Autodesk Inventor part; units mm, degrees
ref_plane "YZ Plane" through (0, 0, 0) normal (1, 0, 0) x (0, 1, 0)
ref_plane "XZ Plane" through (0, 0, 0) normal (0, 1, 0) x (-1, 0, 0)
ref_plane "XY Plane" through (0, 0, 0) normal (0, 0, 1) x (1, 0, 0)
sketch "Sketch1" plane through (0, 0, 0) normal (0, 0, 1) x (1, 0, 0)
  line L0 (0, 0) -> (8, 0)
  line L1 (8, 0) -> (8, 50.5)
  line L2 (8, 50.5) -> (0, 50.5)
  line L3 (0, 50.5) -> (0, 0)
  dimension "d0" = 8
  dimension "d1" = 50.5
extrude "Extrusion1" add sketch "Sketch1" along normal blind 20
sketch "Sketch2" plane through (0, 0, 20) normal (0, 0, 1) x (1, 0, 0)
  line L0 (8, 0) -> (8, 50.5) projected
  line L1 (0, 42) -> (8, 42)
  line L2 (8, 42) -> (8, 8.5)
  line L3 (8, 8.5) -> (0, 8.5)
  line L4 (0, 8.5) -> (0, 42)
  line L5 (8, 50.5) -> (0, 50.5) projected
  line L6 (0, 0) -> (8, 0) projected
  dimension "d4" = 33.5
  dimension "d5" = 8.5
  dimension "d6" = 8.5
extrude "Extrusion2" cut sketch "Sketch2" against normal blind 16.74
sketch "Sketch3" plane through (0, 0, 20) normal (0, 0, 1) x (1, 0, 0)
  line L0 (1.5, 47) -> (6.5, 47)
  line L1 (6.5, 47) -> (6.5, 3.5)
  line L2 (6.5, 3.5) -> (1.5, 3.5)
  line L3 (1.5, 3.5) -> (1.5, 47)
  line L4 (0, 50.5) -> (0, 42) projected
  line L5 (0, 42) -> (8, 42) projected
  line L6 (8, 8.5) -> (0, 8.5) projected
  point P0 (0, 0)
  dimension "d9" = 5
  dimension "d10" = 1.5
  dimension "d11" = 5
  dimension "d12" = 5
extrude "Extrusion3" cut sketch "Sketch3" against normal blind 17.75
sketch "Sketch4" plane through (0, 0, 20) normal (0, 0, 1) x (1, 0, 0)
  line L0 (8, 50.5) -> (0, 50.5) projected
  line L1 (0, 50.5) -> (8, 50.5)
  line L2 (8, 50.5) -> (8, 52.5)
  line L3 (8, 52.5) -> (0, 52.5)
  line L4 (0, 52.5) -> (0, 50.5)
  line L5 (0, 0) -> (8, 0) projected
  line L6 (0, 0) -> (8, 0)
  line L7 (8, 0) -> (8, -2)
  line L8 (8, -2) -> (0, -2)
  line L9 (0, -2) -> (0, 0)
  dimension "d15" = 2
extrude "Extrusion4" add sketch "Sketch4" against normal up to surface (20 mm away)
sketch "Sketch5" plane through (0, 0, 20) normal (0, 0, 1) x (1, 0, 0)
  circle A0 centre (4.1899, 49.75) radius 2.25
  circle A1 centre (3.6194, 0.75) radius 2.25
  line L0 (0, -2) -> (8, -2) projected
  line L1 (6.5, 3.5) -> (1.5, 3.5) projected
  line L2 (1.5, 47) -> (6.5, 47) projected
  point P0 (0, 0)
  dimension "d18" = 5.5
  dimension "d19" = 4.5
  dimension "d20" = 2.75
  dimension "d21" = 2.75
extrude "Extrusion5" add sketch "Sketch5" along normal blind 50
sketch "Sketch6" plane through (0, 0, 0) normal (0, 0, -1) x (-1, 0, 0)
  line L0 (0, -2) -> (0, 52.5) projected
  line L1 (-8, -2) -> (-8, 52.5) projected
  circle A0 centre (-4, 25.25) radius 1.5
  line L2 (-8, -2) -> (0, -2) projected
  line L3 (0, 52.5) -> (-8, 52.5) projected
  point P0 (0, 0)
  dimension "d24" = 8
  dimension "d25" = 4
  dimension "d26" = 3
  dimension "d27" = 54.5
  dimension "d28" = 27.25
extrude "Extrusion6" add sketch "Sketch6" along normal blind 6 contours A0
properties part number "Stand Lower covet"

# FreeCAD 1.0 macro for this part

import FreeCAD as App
import Part
import Sketcher

V = App.Vector
Q = App.Units.Quantity


def add_polygon(sketch, points):
    """Adds a closed chain of lines whose ends are joined by coincident constraints."""
    first, n = sketch.GeometryCount, len(points)
    for a, b in zip(points, points[1:] + points[:1]):
        sketch.addGeometry(Part.LineSegment(App.Vector(*a, 0), App.Vector(*b, 0)), False)
    for i in range(n):
        sketch.addConstraint(Sketcher.Constraint("Coincident", first + i, 2, first + (i + 1) % n, 1))

doc = App.newDocument("Part")
body = doc.addObject("PartDesign::Body", "Body")

sketch1 = doc.addObject("Sketcher::SketchObject", "Sketch")
body.addObject(sketch1)
sketch1.AttachmentSupport = (doc.XY_Plane, [""])
sketch1.MapMode = "FlatFace"
add_polygon(sketch1, [(0, 50), (0, 0), (8, 0), (8, 50)])
sketch1.addConstraint([
    Sketcher.Constraint("Vertical", 0),
    Sketcher.Constraint("Horizontal", 1),
    Sketcher.Constraint("Vertical", 2),
    Sketcher.Constraint("Horizontal", 3),
    Sketcher.Constraint("Coincident", 0, 2, -1, 1),
    Sketcher.Constraint("DistanceX", 1, 1, 1, 2, Q("8 mm")),
    Sketcher.Constraint("DistanceY", 0, 2, 0, 1, Q("50.5 mm")),
])
pad1 = doc.addObject("PartDesign::Pad", "Pad")
body.addObject(pad1)
pad1.Profile = sketch1
pad1.Length = 20

sketch2 = doc.addObject("Sketcher::SketchObject", "Sketch001")
body.addObject(sketch2)
sketch2.AttachmentSupport = (doc.XY_Plane, [""])
sketch2.MapMode = "FlatFace"
sketch2.AttachmentOffset = App.Placement(V(0, 0, 20), App.Rotation())
add_polygon(sketch2, [(0, 8), (8, 8), (8, 42), (0, 42)])
sketch2.addConstraint([
    Sketcher.Constraint("Horizontal", 0),
    Sketcher.Constraint("Vertical", 1),
    Sketcher.Constraint("Horizontal", 2),
    Sketcher.Constraint("Vertical", 3),
    Sketcher.Constraint("PointOnObject", 2, 2, -2),
    Sketcher.Constraint("DistanceY", 1, 1, 1, 2, Q("33.5 mm")),
    Sketcher.Constraint("DistanceY", -1, 1, 0, 2, Q("8.5 mm")),
    Sketcher.Constraint("DistanceX", 0, 1, 0, 2, Q("8 mm")),
])
pocket1 = doc.addObject("PartDesign::Pocket", "Pocket")
body.addObject(pocket1)
pocket1.Profile = sketch2
pocket1.Length = 16.74

sketch3 = doc.addObject("Sketcher::SketchObject", "Sketch002")
body.addObject(sketch3)
sketch3.AttachmentSupport = (doc.XY_Plane, [""])
sketch3.MapMode = "FlatFace"
sketch3.AttachmentOffset = App.Placement(V(0, 0, 20), App.Rotation())
add_polygon(sketch3, [(6, 47), (2, 47), (2, 4), (6, 4)])
sketch3.addConstraint([
    Sketcher.Constraint("Horizontal", 0),
    Sketcher.Constraint("Vertical", 1),
    Sketcher.Constraint("Horizontal", 2),
    Sketcher.Constraint("Vertical", 3),
    Sketcher.Constraint("DistanceX", 0, 2, 0, 1, Q("5 mm")),
    Sketcher.Constraint("DistanceX", -1, 1, 0, 2, Q("1.5 mm")),
    Sketcher.Constraint("DistanceY", 1, 2, 1, 1, Q("43.5 mm")),
    Sketcher.Constraint("DistanceY", -1, 1, 0, 2, Q("47 mm")),
])
pocket2 = doc.addObject("PartDesign::Pocket", "Pocket001")
body.addObject(pocket2)
pocket2.Profile = sketch3
pocket2.Length = 17.75

sketch4 = doc.addObject("Sketcher::SketchObject", "Sketch003")
body.addObject(sketch4)
sketch4.AttachmentSupport = (doc.XY_Plane, [""])
sketch4.MapMode = "FlatFace"
sketch4.AttachmentOffset = App.Placement(V(0, 0, 20), App.Rotation())
add_polygon(sketch4, [(0, 50.5), (8, 50.5), (8, 52.5), (0, 52.5)])
add_polygon(sketch4, [(8, 0), (0, 0), (0, -2), (8, -2)])
sketch4.addConstraint([
    Sketcher.Constraint("Horizontal", 0),
    Sketcher.Constraint("Vertical", 1),
    Sketcher.Constraint("Horizontal", 2),
    Sketcher.Constraint("Vertical", 3),
    Sketcher.Constraint("Horizontal", 4),
    Sketcher.Constraint("Vertical", 5),
    Sketcher.Constraint("Horizontal", 6),
    Sketcher.Constraint("Vertical", 7),
    Sketcher.Constraint("Coincident", 4, 2, -1, 1),
    Sketcher.Constraint("PointOnObject", 2, 2, -2),
    Sketcher.Constraint("Vertical", 1, 2, 6, 2),
    Sketcher.Constraint("Equal", 3, 5),
    Sketcher.Constraint("DistanceY", 1, 1, 1, 2, Q("2 mm")),
    Sketcher.Constraint("DistanceX", 0, 1, 0, 2, Q("8 mm")),
    Sketcher.Constraint("DistanceY", -1, 1, 0, 2, Q("50.5 mm")),
])
pad2 = doc.addObject("PartDesign::Pad", "Pad001")
body.addObject(pad2)
pad2.Profile = sketch4
pad2.Length = 20
pad2.Reversed = True

sketch5 = doc.addObject("Sketcher::SketchObject", "Sketch004")
body.addObject(sketch5)
sketch5.AttachmentSupport = (doc.XY_Plane, [""])
sketch5.MapMode = "FlatFace"
sketch5.AttachmentOffset = App.Placement(V(0, 0, 20), App.Rotation())
sketch5.addGeometry([
    Part.Circle(V(4.2, 49.8, 0), V(0, 0, 1), 2.2),
    Part.Circle(V(3.6, 0.8, 0), V(0, 0, 1), 2.2),
], False)
sketch5.addConstraint([
    Sketcher.Constraint("Equal", 0, 1),
    Sketcher.Constraint("Diameter", 0, Q("4.5 mm")),
    Sketcher.Constraint("DistanceY", 1, 3, 0, 3, Q("49 mm")),
    Sketcher.Constraint("DistanceX", -1, 1, 0, 3, Q("4.19 mm")),
    Sketcher.Constraint("DistanceY", -1, 1, 0, 3, Q("49.75 mm")),
    Sketcher.Constraint("DistanceX", -1, 1, 1, 3, Q("3.6194 mm")),
])
pad3 = doc.addObject("PartDesign::Pad", "Pad002")
body.addObject(pad3)
pad3.Profile = sketch5
pad3.Length = 50

sketch6 = doc.addObject("Sketcher::SketchObject", "Sketch005")
body.addObject(sketch6)
sketch6.AttachmentSupport = (doc.XY_Plane, [""])
sketch6.MapMode = "FlatFace"
sketch6.addGeometry(Part.Circle(V(4, 25.2, 0), V(0, 0, 1), 1.5), False)
sketch6.addConstraint([
    Sketcher.Constraint("Diameter", 0, Q("3 mm")),
    Sketcher.Constraint("DistanceX", -1, 1, 0, 3, Q("4 mm")),
    Sketcher.Constraint("DistanceY", -1, 1, 0, 3, Q("25.25 mm")),
])
pad4 = doc.addObject("PartDesign::Pad", "Pad003")
body.addObject(pad4)
pad4.Profile = sketch6
pad4.Length = 6
pad4.Reversed = True

doc.recompute()
